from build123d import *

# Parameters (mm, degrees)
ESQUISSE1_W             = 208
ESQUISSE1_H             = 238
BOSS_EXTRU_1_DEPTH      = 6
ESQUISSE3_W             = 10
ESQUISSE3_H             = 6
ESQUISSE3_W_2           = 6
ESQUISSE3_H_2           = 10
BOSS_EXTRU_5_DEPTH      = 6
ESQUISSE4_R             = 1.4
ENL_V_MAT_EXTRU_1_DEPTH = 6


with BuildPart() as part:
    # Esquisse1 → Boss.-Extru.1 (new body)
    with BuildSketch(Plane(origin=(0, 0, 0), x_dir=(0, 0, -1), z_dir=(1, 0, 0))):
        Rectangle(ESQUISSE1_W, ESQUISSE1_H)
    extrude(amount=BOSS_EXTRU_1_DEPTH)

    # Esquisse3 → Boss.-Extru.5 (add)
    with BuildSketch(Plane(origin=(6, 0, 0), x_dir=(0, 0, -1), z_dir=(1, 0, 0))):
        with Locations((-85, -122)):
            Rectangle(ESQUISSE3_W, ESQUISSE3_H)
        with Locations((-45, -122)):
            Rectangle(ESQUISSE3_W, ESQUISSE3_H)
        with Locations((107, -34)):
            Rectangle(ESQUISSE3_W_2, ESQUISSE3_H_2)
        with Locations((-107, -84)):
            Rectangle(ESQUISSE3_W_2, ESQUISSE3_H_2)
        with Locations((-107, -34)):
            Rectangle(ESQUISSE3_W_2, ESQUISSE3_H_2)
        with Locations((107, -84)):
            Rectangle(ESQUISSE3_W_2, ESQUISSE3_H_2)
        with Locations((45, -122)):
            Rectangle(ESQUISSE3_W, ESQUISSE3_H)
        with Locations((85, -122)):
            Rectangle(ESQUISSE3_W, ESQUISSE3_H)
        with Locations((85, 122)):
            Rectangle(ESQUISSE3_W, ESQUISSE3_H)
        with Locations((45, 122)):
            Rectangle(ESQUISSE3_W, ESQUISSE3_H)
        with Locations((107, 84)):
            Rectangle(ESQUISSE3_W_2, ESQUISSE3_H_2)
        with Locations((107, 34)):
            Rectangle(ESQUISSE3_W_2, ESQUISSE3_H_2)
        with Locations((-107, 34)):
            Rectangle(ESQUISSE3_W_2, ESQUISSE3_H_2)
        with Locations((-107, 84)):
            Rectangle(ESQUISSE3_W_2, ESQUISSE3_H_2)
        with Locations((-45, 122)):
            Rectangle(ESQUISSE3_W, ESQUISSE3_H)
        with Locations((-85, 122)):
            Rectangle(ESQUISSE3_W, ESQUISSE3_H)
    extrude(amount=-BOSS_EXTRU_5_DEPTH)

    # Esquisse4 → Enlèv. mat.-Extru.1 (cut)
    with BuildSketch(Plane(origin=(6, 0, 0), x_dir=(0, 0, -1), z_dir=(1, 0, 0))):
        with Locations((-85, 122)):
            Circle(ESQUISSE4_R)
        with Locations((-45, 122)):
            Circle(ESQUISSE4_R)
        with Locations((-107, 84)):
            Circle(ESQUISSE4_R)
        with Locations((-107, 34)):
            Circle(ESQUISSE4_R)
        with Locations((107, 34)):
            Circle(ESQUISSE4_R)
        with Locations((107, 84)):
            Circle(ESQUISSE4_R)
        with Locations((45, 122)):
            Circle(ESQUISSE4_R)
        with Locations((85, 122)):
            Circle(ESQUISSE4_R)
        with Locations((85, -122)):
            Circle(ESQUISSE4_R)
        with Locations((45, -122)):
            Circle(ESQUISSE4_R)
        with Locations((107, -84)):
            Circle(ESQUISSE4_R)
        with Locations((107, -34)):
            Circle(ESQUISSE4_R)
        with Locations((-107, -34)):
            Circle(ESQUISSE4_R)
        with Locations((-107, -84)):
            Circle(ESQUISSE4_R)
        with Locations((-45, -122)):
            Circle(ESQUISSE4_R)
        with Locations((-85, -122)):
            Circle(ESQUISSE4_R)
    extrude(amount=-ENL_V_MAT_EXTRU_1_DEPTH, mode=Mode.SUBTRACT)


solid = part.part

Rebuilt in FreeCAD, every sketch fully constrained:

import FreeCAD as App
import Part
import Sketcher
from FreeCAD import Vector


def add_polygon(sketch, points):
    """Adds a closed chain of lines whose ends are joined by coincident constraints."""
    first, n = sketch.GeometryCount, len(points)
    for a, b in zip(points, points[1:] + points[:1]):
        sketch.addGeometry(Part.LineSegment(App.Vector(*a, 0), App.Vector(*b, 0)), False)
    for i in range(n):
        sketch.addConstraint(Sketcher.Constraint("Coincident", first + i, 2, first + (i + 1) % n, 1))

doc = App.newDocument("Part")
params = doc.addObject("Spreadsheet::Sheet", "Params")
for row, (alias, value) in enumerate([
    ("sketch1_width", "238 mm"),
    ("sketch1_height", "208 mm"),
    ("pad1_length", "6 mm"),
    ("sketch2_width", "6 mm"),
    ("sketch2_width2", "10 mm"),
    ("pad2_length", "6 mm"),
    ("sketch3_diameter", "2.8 mm"),
    ("pocket1_length", "6 mm"),
], start=1):
    params.set(f"A{row}", alias)
    params.set(f"B{row}", "=" + value)
    params.setAlias(f"B{row}", alias)

body = doc.addObject("PartDesign::Body", "Body")

# Sketch on YZ plane
sketch1 = body.newObject("Sketcher::SketchObject", "Sketch")
sketch1.AttachmentSupport = (doc.getObject("YZ_Plane"), [""])
sketch1.MapMode = "FlatFace"
add_polygon(sketch1, [(119, 104), (-119, 104), (-119, -104), (119, -104)])  # lines 0-3
sketch1.addConstraint([
    Sketcher.Constraint("Horizontal", 0),
    Sketcher.Constraint("Vertical", 1),
    Sketcher.Constraint("Horizontal", 2),
    Sketcher.Constraint("Vertical", 3),
    Sketcher.Constraint("Symmetric", 0, 2, 2, 2, -1, 1),
    Sketcher.Constraint("DistanceX", 0, 2, 0, 1, 238.0),
    Sketcher.Constraint("DistanceY", 1, 2, 1, 1, 208.0),
])
sketch1.setExpression("Constraints[9]", "Params.sketch1_width")
sketch1.setExpression("Constraints[10]", "Params.sketch1_height")
pad1 = body.newObject("PartDesign::Pad", "Pad")
pad1.Profile = sketch1
pad1.setExpression("Length", "Params.pad1_length")

# Sketch on YZ plane
sketch2 = body.newObject("Sketcher::SketchObject", "Sketch001")
sketch2.AttachmentSupport = (doc.getObject("YZ_Plane"), [""])
sketch2.MapMode = "FlatFace"
sketch2.AttachmentOffset = App.Placement(Vector(0, 0, 6), App.Rotation())
add_polygon(sketch2, [(-119, 90), (-125, 90), (-125, 80), (-119, 80)])  # lines 0-3
add_polygon(sketch2, [(-119, 50), (-125, 50), (-125, 40), (-119, 40)])  # lines 4-7
add_polygon(sketch2, [(-29, -104), (-39, -104), (-39, -110), (-29, -110)])  # lines 8-11
add_polygon(sketch2, [(-79, 110), (-89, 110), (-89, 104), (-79, 104)])  # lines 12-15
add_polygon(sketch2, [(-29, 110), (-39, 110), (-39, 104), (-29, 104)])  # lines 16-19
add_polygon(sketch2, [(-79, -104), (-89, -104), (-89, -110), (-79, -110)])  # lines 20-23
add_polygon(sketch2, [(-119, -40), (-125, -40), (-125, -50), (-119, -50)])  # lines 24-27
add_polygon(sketch2, [(-119, -80), (-125, -80), (-125, -90), (-119, -90)])  # lines 28-31
add_polygon(sketch2, [(125, -80), (119, -80), (119, -90), (125, -90)])  # lines 32-35
add_polygon(sketch2, [(125, -40), (119, -40), (119, -50), (125, -50)])  # lines 36-39
add_polygon(sketch2, [(89, -104), (79, -104), (79, -110), (89, -110)])  # lines 40-43
add_polygon(sketch2, [(39, -104), (29, -104), (29, -110), (39, -110)])  # lines 44-47
add_polygon(sketch2, [(39, 110), (29, 110), (29, 104), (39, 104)])  # lines 48-51
add_polygon(sketch2, [(89, 110), (79, 110), (79, 104), (89, 104)])  # lines 52-55
add_polygon(sketch2, [(125, 50), (119, 50), (119, 40), (125, 40)])  # lines 56-59
add_polygon(sketch2, [(125, 90), (119, 90), (119, 80), (125, 80)])  # lines 60-63
sketch2.addConstraint([
    Sketcher.Constraint("Horizontal", 0),
    Sketcher.Constraint("Vertical", 1),
    Sketcher.Constraint("Horizontal", 2),
    Sketcher.Constraint("Vertical", 3),
    Sketcher.Constraint("Horizontal", 4),
    Sketcher.Constraint("Vertical", 5),
    Sketcher.Constraint("Horizontal", 6),
    Sketcher.Constraint("Vertical", 7),
    Sketcher.Constraint("Horizontal", 8),
    Sketcher.Constraint("Vertical", 9),
    Sketcher.Constraint("Horizontal", 10),
    Sketcher.Constraint("Vertical", 11),
    Sketcher.Constraint("Horizontal", 12),
    Sketcher.Constraint("Vertical", 13),
    Sketcher.Constraint("Horizontal", 14),
    Sketcher.Constraint("Vertical", 15),
    Sketcher.Constraint("Horizontal", 16),
    Sketcher.Constraint("Vertical", 17),
    Sketcher.Constraint("Horizontal", 18),
    Sketcher.Constraint("Vertical", 19),
    Sketcher.Constraint("Horizontal", 20),
    Sketcher.Constraint("Vertical", 21),
    Sketcher.Constraint("Horizontal", 22),
    Sketcher.Constraint("Vertical", 23),
    Sketcher.Constraint("Horizontal", 24),
    Sketcher.Constraint("Vertical", 25),
    Sketcher.Constraint("Horizontal", 26),
    Sketcher.Constraint("Vertical", 27),
    Sketcher.Constraint("Horizontal", 28),
    Sketcher.Constraint("Vertical", 29),
    Sketcher.Constraint("Horizontal", 30),
    Sketcher.Constraint("Vertical", 31),
    Sketcher.Constraint("Horizontal", 32),
    Sketcher.Constraint("Vertical", 33),
    Sketcher.Constraint("Horizontal", 34),
    Sketcher.Constraint("Vertical", 35),
    Sketcher.Constraint("Horizontal", 36),
    Sketcher.Constraint("Vertical", 37),
    Sketcher.Constraint("Horizontal", 38),
    Sketcher.Constraint("Vertical", 39),
    Sketcher.Constraint("Horizontal", 40),
    Sketcher.Constraint("Vertical", 41),
    Sketcher.Constraint("Horizontal", 42),
    Sketcher.Constraint("Vertical", 43),
    Sketcher.Constraint("Horizontal", 44),
    Sketcher.Constraint("Vertical", 45),
    Sketcher.Constraint("Horizontal", 46),
    Sketcher.Constraint("Vertical", 47),
    Sketcher.Constraint("Horizontal", 48),
    Sketcher.Constraint("Vertical", 49),
    Sketcher.Constraint("Horizontal", 50),
    Sketcher.Constraint("Vertical", 51),
    Sketcher.Constraint("Horizontal", 52),
    Sketcher.Constraint("Vertical", 53),
    Sketcher.Constraint("Horizontal", 54),
    Sketcher.Constraint("Vertical", 55),
    Sketcher.Constraint("Horizontal", 56),
    Sketcher.Constraint("Vertical", 57),
    Sketcher.Constraint("Horizontal", 58),
    Sketcher.Constraint("Vertical", 59),
    Sketcher.Constraint("Horizontal", 60),
    Sketcher.Constraint("Vertical", 61),
    Sketcher.Constraint("Horizontal", 62),
    Sketcher.Constraint("Vertical", 63),
    Sketcher.Constraint("Symmetric", 2, 2, 32, 2, -1, 1),
    Sketcher.Constraint("Symmetric", 0, 2, 34, 2, -1, 1),
    Sketcher.Constraint("Symmetric", 6, 2, 36, 2, -1, 1),
    Sketcher.Constraint("Symmetric", 4, 2, 38, 2, -1, 1),
    Sketcher.Constraint("Symmetric", 14, 2, 40, 2, -1, 1),
    Sketcher.Constraint("Symmetric", 12, 2, 42, 2, -1, 1),
    Sketcher.Constraint("Symmetric", 18, 2, 44, 2, -1, 1),
    Sketcher.Constraint("Symmetric", 16, 2, 46, 2, -1, 1),
    Sketcher.Constraint("Symmetric", 10, 2, 48, 2, -1, 1),
    Sketcher.Constraint("Symmetric", 8, 2, 50, 2, -1, 1),
    Sketcher.Constraint("Symmetric", 22, 2, 52, 2, -1, 1),
    Sketcher.Constraint("Symmetric", 20, 2, 54, 2, -1, 1),
    Sketcher.Constraint("Symmetric", 26, 2, 56, 2, -1, 1),
    Sketcher.Constraint("Symmetric", 24, 2, 58, 2, -1, 1),
    Sketcher.Constraint("Symmetric", 30, 2, 60, 2, -1, 1),
    Sketcher.Constraint("Symmetric", 28, 2, 62, 2, -1, 1),
    Sketcher.Constraint("Symmetric", 31, 2, 32, 2, -2),
    Sketcher.Constraint("Symmetric", 29, 2, 34, 2, -2),
    Sketcher.Constraint("Symmetric", 27, 2, 36, 2, -2),
    Sketcher.Constraint("Symmetric", 25, 2, 38, 2, -2),
    Sketcher.Constraint("Symmetric", 23, 2, 40, 2, -2),
    Sketcher.Constraint("Symmetric", 21, 2, 42, 2, -2),
    Sketcher.Constraint("Symmetric", 11, 2, 44, 2, -2),
    Sketcher.Constraint("Symmetric", 9, 2, 46, 2, -2),
    Sketcher.Constraint("Horizontal", 15, 2, 16, 2),
    Sketcher.Constraint("Horizontal", 14, 2, 17, 2),
    Sketcher.Constraint("Vertical", 1, 2, 4, 2),
    Sketcher.Constraint("Vertical", 3, 2, 6, 2),
    Sketcher.Constraint("Equal", 10, 12),
    Sketcher.Constraint("Equal", 54, 1),
    Sketcher.Constraint("Equal", 3, 5),
    Sketcher.Constraint("Equal", 62, 9),
    Sketcher.Constraint("DistanceX", 0, 2, 0, 1, 6.0),
    Sketcher.Constraint("DistanceX", 8, 2, 8, 1, 10.0),
    Sketcher.Constraint("DistanceX", 0, 2, -1, 1, 125.0),
    Sketcher.Constraint("DistanceY", -1, 1, 0, 2, 90.0),
    Sketcher.Constraint("DistanceY", -1, 1, 4, 2, 50.0),
    Sketcher.Constraint("DistanceX", 8, 2, -1, 1, 39.0),
    Sketcher.Constraint("DistanceY", 8, 2, -1, 1, 104.0),
    Sketcher.Constraint("DistanceX", 12, 2, -1, 1, 89.0),
])
sketch2.setExpression("Constraints[160]", "Params.sketch2_width")
sketch2.setExpression("Constraints[161]", "Params.sketch2_width2")
pad2 = body.newObject("PartDesign::Pad", "Pad001")
pad2.Profile = sketch2
pad2.setExpression("Length", "Params.pad2_length")
pad2.Reversed = True

# Sketch on YZ plane
sketch3 = body.newObject("Sketcher::SketchObject", "Sketch002")
sketch3.AttachmentSupport = (doc.getObject("YZ_Plane"), [""])
sketch3.MapMode = "FlatFace"
sketch3.AttachmentOffset = App.Placement(Vector(0, 0, 6), App.Rotation())
sketch3.addGeometry([
    Part.Circle(Vector(122, 85, 0), Vector(0, 0, 1), 1.4),  # 0
    Part.Circle(Vector(122, 45, 0), Vector(0, 0, 1), 1.4),  # 1
    Part.Circle(Vector(84, 107, 0), Vector(0, 0, 1), 1.4),  # 2
    Part.Circle(Vector(34, 107, 0), Vector(0, 0, 1), 1.4),  # 3
    Part.Circle(Vector(34, -107, 0), Vector(0, 0, 1), 1.4),  # 4
    Part.Circle(Vector(84, -107, 0), Vector(0, 0, 1), 1.4),  # 5
    Part.Circle(Vector(122, -45, 0), Vector(0, 0, 1), 1.4),  # 6
    Part.Circle(Vector(122, -85, 0), Vector(0, 0, 1), 1.4),  # 7
    Part.Circle(Vector(-122, -85, 0), Vector(0, 0, 1), 1.4),  # 8
    Part.Circle(Vector(-122, -45, 0), Vector(0, 0, 1), 1.4),  # 9
    Part.Circle(Vector(-84, -107, 0), Vector(0, 0, 1), 1.4),  # 10
    Part.Circle(Vector(-34, -107, 0), Vector(0, 0, 1), 1.4),  # 11
    Part.Circle(Vector(-34, 107, 0), Vector(0, 0, 1), 1.4),  # 12
    Part.Circle(Vector(-84, 107, 0), Vector(0, 0, 1), 1.4),  # 13
    Part.Circle(Vector(-122, 45, 0), Vector(0, 0, 1), 1.4),  # 14
    Part.Circle(Vector(-122, 85, 0), Vector(0, 0, 1), 1.4),  # 15
], False)
sketch3.addConstraint([
    Sketcher.Constraint("Equal", 0, 1),
    Sketcher.Constraint("Equal", 1, 2),
    Sketcher.Constraint("Equal", 2, 3),
    Sketcher.Constraint("Equal", 3, 4),
    Sketcher.Constraint("Equal", 4, 5),
    Sketcher.Constraint("Equal", 5, 6),
    Sketcher.Constraint("Equal", 6, 7),
    Sketcher.Constraint("Equal", 7, 8),
    Sketcher.Constraint("Equal", 8, 9),
    Sketcher.Constraint("Equal", 9, 10),
    Sketcher.Constraint("Equal", 10, 11),
    Sketcher.Constraint("Equal", 11, 12),
    Sketcher.Constraint("Equal", 12, 13),
    Sketcher.Constraint("Equal", 13, 14),
    Sketcher.Constraint("Equal", 14, 15),
    Sketcher.Constraint("Symmetric", 0, 3, 8, 3, -1, 1),
    Sketcher.Constraint("Symmetric", 1, 3, 9, 3, -1, 1),
    Sketcher.Constraint("Symmetric", 2, 3, 10, 3, -1, 1),
    Sketcher.Constraint("Symmetric", 3, 3, 11, 3, -1, 1),
    Sketcher.Constraint("Symmetric", 4, 3, 12, 3, -1, 1),
    Sketcher.Constraint("Symmetric", 5, 3, 13, 3, -1, 1),
    Sketcher.Constraint("Symmetric", 6, 3, 14, 3, -1, 1),
    Sketcher.Constraint("Symmetric", 7, 3, 15, 3, -1, 1),
    Sketcher.Constraint("Symmetric", 7, 3, 8, 3, -2),
    Sketcher.Constraint("Symmetric", 6, 3, 9, 3, -2),
    Sketcher.Constraint("Symmetric", 5, 3, 10, 3, -2),
    Sketcher.Constraint("Symmetric", 4, 3, 11, 3, -2),
    Sketcher.Constraint("Horizontal", 2, 3, 3, 3),
    Sketcher.Constraint("Vertical", 0, 3, 1, 3),
    Sketcher.Constraint("Diameter", 0, 2.8),
    Sketcher.Constraint("DistanceX", -1, 1, 0, 3, 122.0),
    Sketcher.Constraint("DistanceY", -1, 1, 0, 3, 85.0),
    Sketcher.Constraint("DistanceY", -1, 1, 1, 3, 45.0),
    Sketcher.Constraint("DistanceX", -1, 1, 2, 3, 84.0),
    Sketcher.Constraint("DistanceY", -1, 1, 2, 3, 107.0),
    Sketcher.Constraint("DistanceX", -1, 1, 3, 3, 34.0),
])
sketch3.setExpression("Constraints[29]", "Params.sketch3_diameter")
pocket1 = body.newObject("PartDesign::Pocket", "Pocket")
pocket1.Profile = sketch3
pocket1.setExpression("Length", "Params.pocket1_length")

doc.recompute()
